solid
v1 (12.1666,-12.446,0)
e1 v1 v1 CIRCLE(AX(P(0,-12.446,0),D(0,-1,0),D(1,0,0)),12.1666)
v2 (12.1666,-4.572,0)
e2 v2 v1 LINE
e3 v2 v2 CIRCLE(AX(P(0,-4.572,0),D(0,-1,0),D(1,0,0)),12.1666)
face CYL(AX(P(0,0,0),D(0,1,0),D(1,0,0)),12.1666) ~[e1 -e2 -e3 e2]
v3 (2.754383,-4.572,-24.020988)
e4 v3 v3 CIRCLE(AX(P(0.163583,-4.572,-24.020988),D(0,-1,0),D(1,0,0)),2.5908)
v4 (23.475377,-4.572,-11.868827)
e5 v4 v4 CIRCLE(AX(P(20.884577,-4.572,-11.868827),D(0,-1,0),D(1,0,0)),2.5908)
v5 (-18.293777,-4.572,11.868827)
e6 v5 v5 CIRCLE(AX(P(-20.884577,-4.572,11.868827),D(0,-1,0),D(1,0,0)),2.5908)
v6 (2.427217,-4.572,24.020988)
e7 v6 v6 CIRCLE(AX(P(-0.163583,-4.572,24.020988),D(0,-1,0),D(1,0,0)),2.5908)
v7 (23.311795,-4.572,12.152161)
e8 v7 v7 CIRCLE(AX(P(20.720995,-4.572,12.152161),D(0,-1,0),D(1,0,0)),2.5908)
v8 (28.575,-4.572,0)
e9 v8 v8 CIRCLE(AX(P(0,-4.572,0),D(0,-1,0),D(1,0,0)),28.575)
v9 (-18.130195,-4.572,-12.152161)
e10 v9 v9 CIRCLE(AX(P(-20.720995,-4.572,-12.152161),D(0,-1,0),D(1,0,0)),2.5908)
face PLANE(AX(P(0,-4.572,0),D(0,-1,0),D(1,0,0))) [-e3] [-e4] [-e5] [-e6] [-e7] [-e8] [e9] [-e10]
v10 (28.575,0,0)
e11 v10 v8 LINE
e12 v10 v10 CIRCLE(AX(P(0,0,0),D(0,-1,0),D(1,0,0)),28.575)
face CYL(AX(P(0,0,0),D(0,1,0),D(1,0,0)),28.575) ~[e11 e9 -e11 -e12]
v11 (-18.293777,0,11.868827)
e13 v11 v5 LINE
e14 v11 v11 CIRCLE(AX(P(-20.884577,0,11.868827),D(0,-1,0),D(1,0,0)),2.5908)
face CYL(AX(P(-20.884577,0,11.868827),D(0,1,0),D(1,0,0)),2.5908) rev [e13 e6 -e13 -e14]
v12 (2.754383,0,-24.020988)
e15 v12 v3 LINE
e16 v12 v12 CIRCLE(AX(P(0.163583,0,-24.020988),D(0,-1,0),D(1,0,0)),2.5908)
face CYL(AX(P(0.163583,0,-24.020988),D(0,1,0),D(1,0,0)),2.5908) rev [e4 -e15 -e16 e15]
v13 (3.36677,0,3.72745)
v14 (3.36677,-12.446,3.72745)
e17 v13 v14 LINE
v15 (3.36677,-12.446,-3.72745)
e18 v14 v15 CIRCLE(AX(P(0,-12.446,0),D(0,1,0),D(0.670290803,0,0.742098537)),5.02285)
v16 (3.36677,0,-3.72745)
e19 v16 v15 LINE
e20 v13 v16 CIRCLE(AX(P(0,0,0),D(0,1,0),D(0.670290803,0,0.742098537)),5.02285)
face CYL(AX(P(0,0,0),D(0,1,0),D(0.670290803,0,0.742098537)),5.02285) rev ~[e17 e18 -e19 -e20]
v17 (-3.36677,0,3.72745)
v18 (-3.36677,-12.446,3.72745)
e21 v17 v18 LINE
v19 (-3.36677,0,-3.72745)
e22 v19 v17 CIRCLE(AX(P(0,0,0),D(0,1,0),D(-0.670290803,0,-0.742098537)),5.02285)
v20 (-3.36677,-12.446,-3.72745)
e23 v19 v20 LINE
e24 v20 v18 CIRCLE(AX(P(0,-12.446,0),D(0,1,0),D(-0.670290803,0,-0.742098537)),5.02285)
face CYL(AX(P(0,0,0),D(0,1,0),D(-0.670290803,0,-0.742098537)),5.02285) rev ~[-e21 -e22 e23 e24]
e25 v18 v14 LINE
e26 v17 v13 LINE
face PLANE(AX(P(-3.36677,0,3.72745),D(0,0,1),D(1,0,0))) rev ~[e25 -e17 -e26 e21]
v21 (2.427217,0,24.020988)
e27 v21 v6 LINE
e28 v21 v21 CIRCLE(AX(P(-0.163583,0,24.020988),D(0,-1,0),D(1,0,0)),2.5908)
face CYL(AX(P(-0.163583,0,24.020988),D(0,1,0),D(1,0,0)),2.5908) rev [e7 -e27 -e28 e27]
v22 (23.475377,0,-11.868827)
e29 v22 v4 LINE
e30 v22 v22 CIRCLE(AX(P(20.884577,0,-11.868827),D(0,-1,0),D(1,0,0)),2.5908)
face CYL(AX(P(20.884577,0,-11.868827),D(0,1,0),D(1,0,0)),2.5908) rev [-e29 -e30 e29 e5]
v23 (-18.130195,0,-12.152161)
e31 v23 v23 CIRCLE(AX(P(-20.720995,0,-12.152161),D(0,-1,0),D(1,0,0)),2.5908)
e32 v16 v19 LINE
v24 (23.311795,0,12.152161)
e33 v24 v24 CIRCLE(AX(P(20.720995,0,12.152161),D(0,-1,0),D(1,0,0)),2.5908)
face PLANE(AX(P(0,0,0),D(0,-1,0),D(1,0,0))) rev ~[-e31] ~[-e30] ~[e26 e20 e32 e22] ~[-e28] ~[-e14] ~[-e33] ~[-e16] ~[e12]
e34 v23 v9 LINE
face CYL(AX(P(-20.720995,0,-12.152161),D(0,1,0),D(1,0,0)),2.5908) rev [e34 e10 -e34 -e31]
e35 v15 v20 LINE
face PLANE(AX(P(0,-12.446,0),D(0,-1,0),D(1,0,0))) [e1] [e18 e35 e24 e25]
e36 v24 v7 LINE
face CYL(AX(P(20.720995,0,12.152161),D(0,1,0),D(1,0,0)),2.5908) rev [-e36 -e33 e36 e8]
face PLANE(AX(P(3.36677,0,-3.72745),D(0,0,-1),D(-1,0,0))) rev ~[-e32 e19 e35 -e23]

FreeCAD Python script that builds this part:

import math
import FreeCAD as App
import Part
import Sketcher
from FreeCAD import Vector
Q = App.Units.Quantity

doc = App.newDocument("Part")
body = doc.addObject("PartDesign::Body", "Body")

sketch1 = doc.addObject("Sketcher::SketchObject", "Sketch")
body.addObject(sketch1)
sketch1.AttachmentSupport = (doc.XZ_Plane, [""])
sketch1.MapMode = "FlatFace"
sketch1.addGeometry([
    Part.Circle(Vector(0, 0, 0), Vector(0, 0, 1), 28.6),
    Part.Circle(Vector(-20.7, -12.2, 0), Vector(0, 0, 1), 2.6),
    Part.Circle(Vector(0.2, -24, 0), Vector(0, 0, 1), 2.6),
    Part.Circle(Vector(0, 0, 0), Vector(0, 0, 1), 12.2),
    Part.Circle(Vector(20.9, -11.9, 0), Vector(0, 0, 1), 2.6),
    Part.Circle(Vector(-20.9, 11.9, 0), Vector(0, 0, 1), 2.6),
    Part.Circle(Vector(-0.2, 24, 0), Vector(0, 0, 1), 2.6),
    Part.Circle(Vector(20.7, 12.2, 0), Vector(0, 0, 1), 2.6),
], False)
sketch1.addConstraint([
    Sketcher.Constraint("Coincident", 0, 3, -1, 1),
    Sketcher.Constraint("Coincident", 3, 3, -1, 1),
    Sketcher.Constraint("Equal", 1, 2),
    Sketcher.Constraint("Equal", 2, 4),
    Sketcher.Constraint("Equal", 4, 5),
    Sketcher.Constraint("Equal", 5, 6),
    Sketcher.Constraint("Equal", 6, 7),
    Sketcher.Constraint("Symmetric", 4, 3, 5, 3, -1, 1),
    Sketcher.Constraint("Symmetric", 2, 3, 6, 3, -1, 1),
    Sketcher.Constraint("Symmetric", 1, 3, 7, 3, -1, 1),
    Sketcher.Constraint("Diameter", 0, Q("2.25 in")),
    Sketcher.Constraint("Diameter", 1, Q("0.204 in")),
    Sketcher.Constraint("Diameter", 3, Q("0.958 in")),
    Sketcher.Constraint("DistanceY", 1, 3, -1, 1, Q("12.152161 mm")),
    Sketcher.Constraint("DistanceY", 2, 3, 4, 3, Q("12.152161 mm")),
    Sketcher.Constraint("DistanceX", 1, 3, 4, 3, Q("41.605572 mm")),
    Sketcher.Constraint("DistanceX", 5, 3, 2, 3, Q("21.04816 mm")),
    Sketcher.Constraint("DistanceY", 1, 3, 6, 3, Q("36.173149 mm")),
    Sketcher.Constraint("DistanceX", 1, 3, -1, 1, Q("20.720995 mm")),
])
pad1 = doc.addObject("PartDesign::Pad", "Pad")
body.addObject(pad1)
pad1.Profile = sketch1
pad1.Length = Q("0.18 in")

sketch2 = doc.addObject("Sketcher::SketchObject", "Sketch001")
body.addObject(sketch2)
sketch2.AttachmentSupport = (doc.XZ_Plane, [""])
sketch2.MapMode = "FlatFace"
sketch2.addGeometry([
    Part.Circle(Vector(0, 0, 0), Vector(0, 0, 1), 12),
    Part.LineSegment(Vector(3, -4, 0), Vector(-3, -4, 0)),
    Part.ArcOfCircle(Part.Circle(Vector(0, 0, 0), Vector(0, 0, 1), 5), math.radians(132), math.radians(228)),
    Part.LineSegment(Vector(-3, 4, 0), Vector(3, 4, 0)),
    Part.ArcOfCircle(Part.Circle(Vector(0, 0, 0), Vector(0, 0, 1), 5), math.radians(-48), math.radians(48)),
], False)
sketch2.addConstraint([
    Sketcher.Constraint("Coincident", 1, 2, 2, 2),
    Sketcher.Constraint("Coincident", 2, 1, 3, 1),
    Sketcher.Constraint("Coincident", 3, 2, 4, 2),
    Sketcher.Constraint("Coincident", 4, 1, 1, 1),
    Sketcher.Constraint("Horizontal", 1),
    Sketcher.Constraint("Horizontal", 3),
    Sketcher.Constraint("Coincident", 0, 3, -1, 1),
    Sketcher.Constraint("Coincident", 2, 3, -1, 1),
    Sketcher.Constraint("Coincident", 4, 3, -1, 1),
    Sketcher.Constraint("Equal", 2, 4),
    Sketcher.Constraint("Vertical", 1, 2, 2, 1),
    Sketcher.Constraint("Diameter", 0, Q("0.958 in")),
    Sketcher.Constraint("DistanceX", 1, 2, 1, 1, Q("0.2651 in")),
    Sketcher.Constraint("Radius", 2, Q("5.02285 mm")),
])
pad2 = doc.addObject("PartDesign::Pad", "Pad001")
body.addObject(pad2)
pad2.Profile = sketch2
pad2.Length = Q("0.49 in")

doc.recompute()
